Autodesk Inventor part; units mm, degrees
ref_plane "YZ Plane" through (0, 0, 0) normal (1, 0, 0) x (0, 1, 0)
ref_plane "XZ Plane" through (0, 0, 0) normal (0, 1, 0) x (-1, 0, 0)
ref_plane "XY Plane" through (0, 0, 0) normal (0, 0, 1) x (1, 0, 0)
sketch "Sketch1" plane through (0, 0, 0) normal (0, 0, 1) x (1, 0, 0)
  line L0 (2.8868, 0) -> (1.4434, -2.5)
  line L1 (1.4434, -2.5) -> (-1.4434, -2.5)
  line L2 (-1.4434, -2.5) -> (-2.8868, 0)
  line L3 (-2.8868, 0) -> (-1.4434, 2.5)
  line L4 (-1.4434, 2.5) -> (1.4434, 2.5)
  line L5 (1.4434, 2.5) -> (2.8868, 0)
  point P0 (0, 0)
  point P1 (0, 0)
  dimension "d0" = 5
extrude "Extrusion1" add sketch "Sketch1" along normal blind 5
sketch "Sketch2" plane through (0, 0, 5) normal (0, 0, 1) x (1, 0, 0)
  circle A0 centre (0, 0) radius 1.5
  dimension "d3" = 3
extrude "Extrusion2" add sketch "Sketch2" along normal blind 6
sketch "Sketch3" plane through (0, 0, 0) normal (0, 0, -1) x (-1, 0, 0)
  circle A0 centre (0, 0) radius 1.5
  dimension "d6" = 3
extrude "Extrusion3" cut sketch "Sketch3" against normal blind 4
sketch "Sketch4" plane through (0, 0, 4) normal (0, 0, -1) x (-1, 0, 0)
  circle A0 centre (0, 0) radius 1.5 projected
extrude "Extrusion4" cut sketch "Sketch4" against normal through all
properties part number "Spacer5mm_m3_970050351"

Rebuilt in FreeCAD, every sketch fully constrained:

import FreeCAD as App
import Part
import Sketcher
Q = App.Units.Quantity


def add_polygon(sketch, points):
    """Adds a closed chain of lines whose ends are joined by coincident constraints."""
    first, n = sketch.GeometryCount, len(points)
    for a, b in zip(points, points[1:] + points[:1]):
        sketch.addGeometry(Part.LineSegment(App.Vector(*a, 0), App.Vector(*b, 0)), False)
    for i in range(n):
        sketch.addConstraint(Sketcher.Constraint("Coincident", first + i, 2, first + (i + 1) % n, 1))

doc = App.newDocument("Part")
body = doc.addObject("PartDesign::Body", "Body")

# Sketch on XY plane
sketch1 = doc.addObject("Sketcher::SketchObject", "Sketch")
body.addObject(sketch1)
sketch1.AttachmentSupport = (doc.XY_Plane, [""])
sketch1.MapMode = "FlatFace"
add_polygon(sketch1, [(1.4, -2.5), (2.9, 0), (1.4, 2.5), (-1.4, 2.5), (-2.9, 0), (-1.4, -2.5)])  # lines 0-5
sketch1.addConstraint([
    Sketcher.Constraint("Horizontal", 2),
    Sketcher.Constraint("Horizontal", 5),
    Sketcher.Constraint("Symmetric", 0, 2, 3, 2, -1, 1),
    Sketcher.Constraint("Symmetric", 1, 2, 4, 2, -1, 1),
    Sketcher.Constraint("PointOnObject", 0, 2, -1),
    Sketcher.Constraint("Parallel", 0, 3),
    Sketcher.Constraint("Vertical", 2, 2, 4, 2),
    Sketcher.Constraint("DistanceY", 4, 2, 2, 2, Q("5 mm")),
    Sketcher.Constraint("Angle", 0, Q("59.9996 deg")),
    Sketcher.Constraint("DistanceX", 2, 2, 2, 1, Q("2.8868 mm")),
])
pad1 = doc.addObject("PartDesign::Pad", "Pad")
body.addObject(pad1)
pad1.Profile = sketch1
pad1.Length = 5

# Sketch on XY plane
sketch2 = doc.addObject("Sketcher::SketchObject", "Sketch001")
body.addObject(sketch2)
sketch2.AttachmentSupport = (doc.XY_Plane, [""])
sketch2.MapMode = "FlatFace"
sketch2.AttachmentOffset = App.Placement(App.Vector(0, 0, 5), App.Rotation())
sketch2.addGeometry(Part.Circle(App.Vector(0, 0, 0), App.Vector(0, 0, 1), 1.5), False)
sketch2.addConstraint([
    Sketcher.Constraint("Coincident", 0, 3, -1, 1),
    Sketcher.Constraint("Diameter", 0, Q("3 mm")),
])
pad2 = doc.addObject("PartDesign::Pad", "Pad001")
body.addObject(pad2)
pad2.Profile = sketch2
pad2.Length = 6

# Sketch on XY plane
sketch3 = doc.addObject("Sketcher::SketchObject", "Sketch002")
body.addObject(sketch3)
sketch3.AttachmentSupport = (doc.XY_Plane, [""])
sketch3.MapMode = "FlatFace"
sketch3.addGeometry(Part.Circle(App.Vector(0, 0, 0), App.Vector(0, 0, 1), 1.5), False)
sketch3.addConstraint([
    Sketcher.Constraint("Coincident", 0, 3, -1, 1),
    Sketcher.Constraint("Diameter", 0, Q("3 mm")),
])
pocket1 = doc.addObject("PartDesign::Pocket", "Pocket")
body.addObject(pocket1)
pocket1.Profile = sketch3
pocket1.Length = 4
pocket1.Reversed = True

# Sketch on XY plane
sketch4 = doc.addObject("Sketcher::SketchObject", "Sketch003")
body.addObject(sketch4)
sketch4.AttachmentSupport = (doc.XY_Plane, [""])
sketch4.MapMode = "FlatFace"
sketch4.AttachmentOffset = App.Placement(App.Vector(0, 0, 4), App.Rotation())
sketch4.addGeometry(Part.Circle(App.Vector(0, 0, 0), App.Vector(0, 0, 1), 1.5), False)
sketch4.addConstraint([
    Sketcher.Constraint("Coincident", 0, 3, -1, 1),
    Sketcher.Constraint("Diameter", 0, Q("3 mm")),
])
pocket2 = doc.addObject("PartDesign::Pocket", "Pocket001")
body.addObject(pocket2)
pocket2.Profile = sketch4
pocket2.Type = "ThroughAll"
pocket2.Reversed = True

doc.recompute()
